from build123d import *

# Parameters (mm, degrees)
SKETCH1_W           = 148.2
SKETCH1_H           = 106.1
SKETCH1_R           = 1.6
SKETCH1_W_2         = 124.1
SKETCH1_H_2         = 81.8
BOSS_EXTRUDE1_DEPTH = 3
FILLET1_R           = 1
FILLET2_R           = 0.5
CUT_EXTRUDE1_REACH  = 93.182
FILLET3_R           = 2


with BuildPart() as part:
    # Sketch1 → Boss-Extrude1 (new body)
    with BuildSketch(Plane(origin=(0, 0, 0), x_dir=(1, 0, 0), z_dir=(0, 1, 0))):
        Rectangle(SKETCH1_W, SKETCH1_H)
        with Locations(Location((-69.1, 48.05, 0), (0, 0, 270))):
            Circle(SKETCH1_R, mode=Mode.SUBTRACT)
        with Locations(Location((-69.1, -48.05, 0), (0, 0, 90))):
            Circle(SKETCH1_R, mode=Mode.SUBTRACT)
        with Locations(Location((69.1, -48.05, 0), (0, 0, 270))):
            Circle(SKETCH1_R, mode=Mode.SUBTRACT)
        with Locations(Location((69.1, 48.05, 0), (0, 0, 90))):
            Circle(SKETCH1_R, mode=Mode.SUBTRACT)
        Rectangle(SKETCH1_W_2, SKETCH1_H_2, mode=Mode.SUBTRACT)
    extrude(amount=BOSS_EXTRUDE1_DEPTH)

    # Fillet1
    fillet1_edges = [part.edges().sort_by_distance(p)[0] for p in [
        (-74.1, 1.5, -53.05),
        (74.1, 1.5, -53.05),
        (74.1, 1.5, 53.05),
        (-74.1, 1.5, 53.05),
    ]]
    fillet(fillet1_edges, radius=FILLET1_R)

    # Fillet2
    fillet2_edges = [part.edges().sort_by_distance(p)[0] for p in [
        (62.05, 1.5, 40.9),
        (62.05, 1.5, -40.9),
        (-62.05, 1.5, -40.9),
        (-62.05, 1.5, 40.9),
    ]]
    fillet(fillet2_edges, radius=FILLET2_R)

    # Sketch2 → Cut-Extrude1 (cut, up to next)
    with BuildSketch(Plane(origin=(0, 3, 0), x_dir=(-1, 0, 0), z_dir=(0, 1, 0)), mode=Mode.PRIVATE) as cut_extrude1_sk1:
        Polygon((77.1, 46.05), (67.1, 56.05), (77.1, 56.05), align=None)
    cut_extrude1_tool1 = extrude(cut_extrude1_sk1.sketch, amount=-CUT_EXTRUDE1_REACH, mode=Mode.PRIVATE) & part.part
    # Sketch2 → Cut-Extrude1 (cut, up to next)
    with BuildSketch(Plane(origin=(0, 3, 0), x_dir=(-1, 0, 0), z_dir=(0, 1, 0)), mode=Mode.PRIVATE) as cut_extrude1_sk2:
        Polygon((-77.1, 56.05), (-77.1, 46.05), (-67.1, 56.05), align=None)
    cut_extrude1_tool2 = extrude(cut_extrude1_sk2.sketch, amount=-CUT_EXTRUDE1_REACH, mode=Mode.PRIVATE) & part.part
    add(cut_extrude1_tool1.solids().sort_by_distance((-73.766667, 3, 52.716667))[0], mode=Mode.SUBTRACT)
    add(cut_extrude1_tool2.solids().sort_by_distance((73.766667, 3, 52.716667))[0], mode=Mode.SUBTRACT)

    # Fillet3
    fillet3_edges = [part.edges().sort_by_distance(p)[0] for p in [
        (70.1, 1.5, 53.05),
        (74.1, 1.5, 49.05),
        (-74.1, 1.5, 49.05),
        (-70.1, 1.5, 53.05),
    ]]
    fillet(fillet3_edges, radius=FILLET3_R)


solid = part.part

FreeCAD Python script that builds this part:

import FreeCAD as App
import Part
import Sketcher

V = App.Vector
Q = App.Units.Quantity


def edges_at(feature, points):
    """Names of the edges that pass closest to the given points."""
    edges = feature.Shape.Edges
    near = lambda p: min(range(len(edges)), key=lambda i: edges[i].distToShape(Part.Vertex(*p))[0])
    return sorted({f"Edge{near(p) + 1}" for p in points})


def add_polygon(sketch, points):
    """Adds a closed chain of lines whose ends are joined by coincident constraints."""
    first, n = sketch.GeometryCount, len(points)
    for a, b in zip(points, points[1:] + points[:1]):
        sketch.addGeometry(Part.LineSegment(App.Vector(*a, 0), App.Vector(*b, 0)), False)
    for i in range(n):
        sketch.addConstraint(Sketcher.Constraint("Coincident", first + i, 2, first + (i + 1) % n, 1))

doc = App.newDocument("Part")
body = doc.addObject("PartDesign::Body", "Body")

# Sketch on XZ plane
sketch1 = body.newObject("Sketcher::SketchObject", "Sketch")
sketch1.AttachmentSupport = (doc.getObject("XZ_Plane"), [""])
sketch1.MapMode = "FlatFace"
add_polygon(sketch1, [(-74.1, -53.05), (-74.1, 53.05), (74.1, 53.05), (74.1, -53.05)])  # lines 0-3
sketch1.addGeometry(Part.Circle(V(-69.1, 48.05, 0), V(0, 0, 1), 1.6), False)  # 4
sketch1.addGeometry(Part.Circle(V(69.1, 48.05, 0), V(0, 0, 1), 1.6), False)  # 5
sketch1.addGeometry(Part.Circle(V(-69.1, -48.05, 0), V(0, 0, 1), 1.6), False)  # 6
add_polygon(sketch1, [(62.05, 40.9), (-62.05, 40.9), (-62.05, -40.9), (62.05, -40.9)])  # lines 7-10
sketch1.addGeometry(Part.Circle(V(69.1, -48.05, 0), V(0, 0, 1), 1.6), False)  # 11
sketch1.addConstraint([
    Sketcher.Constraint("Vertical", 0),
    Sketcher.Constraint("Horizontal", 1),
    Sketcher.Constraint("Vertical", 2),
    Sketcher.Constraint("Horizontal", 3),
    Sketcher.Constraint("Horizontal", 7),
    Sketcher.Constraint("Vertical", 8),
    Sketcher.Constraint("Horizontal", 9),
    Sketcher.Constraint("Vertical", 10),
    Sketcher.Constraint("Equal", 4, 5),
    Sketcher.Constraint("Equal", 5, 6),
    Sketcher.Constraint("Equal", 6, 11),
    Sketcher.Constraint("Symmetric", 5, 3, 6, 3, -1, 1),
    Sketcher.Constraint("Symmetric", 4, 3, 11, 3, -1, 1),
    Sketcher.Constraint("Symmetric", 0, 2, 2, 2, -1, 1),
    Sketcher.Constraint("Symmetric", 7, 2, 9, 2, -1, 1),
    Sketcher.Constraint("Symmetric", 4, 3, 5, 3, -2),
    Sketcher.Constraint("Diameter", 4, Q("3.2 mm")),
    Sketcher.Constraint("DistanceX", 1, 1, 1, 2, Q("148.2 mm")),
    Sketcher.Constraint("DistanceX", 7, 2, 7, 1, Q("124.1 mm")),
    Sketcher.Constraint("DistanceY", 0, 1, 0, 2, Q("106.1 mm")),
    Sketcher.Constraint("DistanceY", 8, 2, 8, 1, Q("81.8 mm")),
    Sketcher.Constraint("DistanceX", 0, 2, 4, 3, Q("5 mm")),
    Sketcher.Constraint("DistanceY", 4, 3, 0, 2, Q("5 mm")),
])
pad1 = body.newObject("PartDesign::Pad", "Pad")
pad1.Profile = sketch1
pad1.Length = 3
pad1.Reversed = True
doc.recompute()

fillet = body.newObject("PartDesign::Fillet", "Fillet")
fillet.Base = (pad1, edges_at(pad1, [
    (-74.1, 1.5, -53.05),
    (74.1, 1.5, -53.05),
    (74.1, 1.5, 53.05),
    (-74.1, 1.5, 53.05),
]))
fillet.Radius = 1
doc.recompute()

fillet2 = body.newObject("PartDesign::Fillet", "Fillet001")
fillet2.Base = (fillet, edges_at(fillet, [
    (62.05, 1.5, 40.9),
    (62.05, 1.5, -40.9),
    (-62.05, 1.5, -40.9),
    (-62.05, 1.5, 40.9),
]))
fillet2.Radius = 0.5

# Sketch on XZ plane
sketch2 = body.newObject("Sketcher::SketchObject", "Sketch001")
sketch2.AttachmentSupport = (doc.getObject("XZ_Plane"), [""])
sketch2.MapMode = "FlatFace"
sketch2.AttachmentOffset = App.Placement(V(0, 0, -3), App.Rotation())
add_polygon(sketch2, [(-67.1, 56.05), (-77.1, 46.05), (-77.1, 56.05)])  # lines 0-2
sketch2.addConstraint([
    Sketcher.Constraint("Vertical", 1),
    Sketcher.Constraint("Horizontal", 2),
    Sketcher.Constraint("Equal", 2, 1),
    Sketcher.Constraint("DistanceX", 2, 1, 2, 2, Q("10 mm")),
    Sketcher.Constraint("DistanceX", 0, 2, -1, 1, Q("77.1 mm")),
    Sketcher.Constraint("DistanceY", -1, 1, 0, 2, Q("46.05 mm")),
])
pocket1 = body.newObject("PartDesign::Pocket", "Pocket")
pocket1.Profile = sketch2
pocket1.Type = "UpToFirst"
pocket1.Reversed = True

# Sketch on XZ plane
sketch3 = body.newObject("Sketcher::SketchObject", "Sketch002")
sketch3.AttachmentSupport = (doc.getObject("XZ_Plane"), [""])
sketch3.MapMode = "FlatFace"
sketch3.AttachmentOffset = App.Placement(V(0, 0, -3), App.Rotation())
add_polygon(sketch3, [(77.1, 56.05), (77.1, 46.05), (67.1, 56.05)])  # lines 0-2
sketch3.addConstraint([
    Sketcher.Constraint("Vertical", 0),
    Sketcher.Constraint("Horizontal", 2),
    Sketcher.Constraint("Equal", 2, 0),
    Sketcher.Constraint("DistanceX", 2, 1, 2, 2, Q("10 mm")),
    Sketcher.Constraint("DistanceX", -1, 1, 0, 2, Q("77.1 mm")),
    Sketcher.Constraint("DistanceY", -1, 1, 0, 2, Q("46.05 mm")),
])
pocket2 = body.newObject("PartDesign::Pocket", "Pocket001")
pocket2.Profile = sketch3
pocket2.Type = "UpToFirst"
pocket2.Reversed = True
doc.recompute()

fillet3 = body.newObject("PartDesign::Fillet", "Fillet002")
fillet3.Base = (pocket2, edges_at(pocket2, [
    (70.1, 1.5, 53.05),
    (74.1, 1.5, 49.05),
    (-74.1, 1.5, 49.05),
    (-70.1, 1.5, 53.05),
]))
fillet3.Radius = 2

doc.recompute()
